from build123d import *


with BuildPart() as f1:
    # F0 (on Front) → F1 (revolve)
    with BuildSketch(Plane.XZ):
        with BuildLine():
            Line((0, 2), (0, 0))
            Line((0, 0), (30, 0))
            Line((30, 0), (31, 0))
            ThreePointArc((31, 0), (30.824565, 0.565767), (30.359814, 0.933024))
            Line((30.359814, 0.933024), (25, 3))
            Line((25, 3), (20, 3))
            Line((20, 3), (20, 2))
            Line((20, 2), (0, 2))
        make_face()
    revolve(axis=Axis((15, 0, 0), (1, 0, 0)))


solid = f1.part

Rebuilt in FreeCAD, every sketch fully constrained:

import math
import FreeCAD as App
import Part
import Sketcher

V = App.Vector

doc = App.newDocument("Part")
params = doc.addObject("Spreadsheet::Sheet", "Params")
for row, (alias, value) in enumerate([
    ("sketch1_radius", "1 mm"),
    ("sketch1_width", "31 mm"),
    ("sketch1_width2", "5 mm"),
    ("sketch1_width3", "20 mm"),
    ("sketch1_height", "2 mm"),
    ("revolution_angle", "360 deg"),
], start=1):
    params.set(f"A{row}", alias)
    params.set(f"B{row}", "=" + value)
    params.setAlias(f"B{row}", alias)

body = doc.addObject("PartDesign::Body", "Body")

# Sketch on XZ plane
sketch1 = body.newObject("Sketcher::SketchObject", "Sketch")
sketch1.AttachmentSupport = (doc.getObject("XZ_Plane"), [""])
sketch1.MapMode = "FlatFace"
sketch1.addGeometry(Part.LineSegment(V(0, 2, 0), V(0, 0, 0)), False)
sketch1.addGeometry(Part.LineSegment(V(0, 0, 0), V(31, 0, 0)), False)
sketch1.addGeometry(Part.ArcOfCircle(Part.Circle(V(30, 0, 0), V(0, 0, 1), 1), math.radians(0), math.radians(69)), False)
sketch1.addGeometry(Part.LineSegment(V(30.4, 0.9, 0), V(25, 3, 0)), False)
sketch1.addGeometry(Part.LineSegment(V(25, 3, 0), V(20, 3, 0)), False)
sketch1.addGeometry(Part.LineSegment(V(20, 3, 0), V(20, 2, 0)), False)
sketch1.addGeometry(Part.LineSegment(V(20, 2, 0), V(0, 2, 0)), False)
sketch1.addConstraint(Sketcher.Constraint("Coincident", 0, 2, 1, 1))
sketch1.addConstraint(Sketcher.Constraint("Coincident", 1, 2, 2, 1))
sketch1.addConstraint(Sketcher.Constraint("Tangent", 2, 2, 3, 1))
sketch1.addConstraint(Sketcher.Constraint("Coincident", 3, 2, 4, 1))
sketch1.addConstraint(Sketcher.Constraint("Coincident", 4, 2, 5, 1))
sketch1.addConstraint(Sketcher.Constraint("Coincident", 5, 2, 6, 1))
sketch1.addConstraint(Sketcher.Constraint("Coincident", 6, 2, 0, 1))
sketch1.addConstraint(Sketcher.Constraint("Vertical", 0))
sketch1.addConstraint(Sketcher.Constraint("Horizontal", 1))
sketch1.addConstraint(Sketcher.Constraint("Horizontal", 4))
sketch1.addConstraint(Sketcher.Constraint("Vertical", 5))
sketch1.addConstraint(Sketcher.Constraint("Horizontal", 6))
sketch1.addConstraint(Sketcher.Constraint("Coincident", 0, 2, -1, 1))
sketch1.addConstraint(Sketcher.Constraint("PointOnObject", 2, 3, -1))
sketch1.addConstraint(Sketcher.Constraint("Radius", 2, 1.0))
sketch1.addConstraint(Sketcher.Constraint("DistanceX", 1, 1, 1, 2, 31.0))
sketch1.addConstraint(Sketcher.Constraint("DistanceX", 4, 2, 4, 1, 5.0))
sketch1.addConstraint(Sketcher.Constraint("DistanceX", 6, 2, 6, 1, 20.0))
sketch1.addConstraint(Sketcher.Constraint("DistanceY", 0, 2, 0, 1, 2.0))
sketch1.addConstraint(Sketcher.Constraint("DistanceY", 5, 2, 5, 1, 1.0))
sketch1.setExpression("Constraints[14]", "Params.sketch1_radius")
sketch1.setExpression("Constraints[15]", "Params.sketch1_width")
sketch1.setExpression("Constraints[16]", "Params.sketch1_width2")
sketch1.setExpression("Constraints[17]", "Params.sketch1_width3")
sketch1.setExpression("Constraints[18]", "Params.sketch1_height")
revolution = body.newObject("PartDesign::Revolution", "Revolution")
revolution.Profile = sketch1
revolution.ReferenceAxis = (sketch1, ["H_Axis"])
revolution.setExpression("Angle", "Params.revolution_angle")

doc.recompute()
